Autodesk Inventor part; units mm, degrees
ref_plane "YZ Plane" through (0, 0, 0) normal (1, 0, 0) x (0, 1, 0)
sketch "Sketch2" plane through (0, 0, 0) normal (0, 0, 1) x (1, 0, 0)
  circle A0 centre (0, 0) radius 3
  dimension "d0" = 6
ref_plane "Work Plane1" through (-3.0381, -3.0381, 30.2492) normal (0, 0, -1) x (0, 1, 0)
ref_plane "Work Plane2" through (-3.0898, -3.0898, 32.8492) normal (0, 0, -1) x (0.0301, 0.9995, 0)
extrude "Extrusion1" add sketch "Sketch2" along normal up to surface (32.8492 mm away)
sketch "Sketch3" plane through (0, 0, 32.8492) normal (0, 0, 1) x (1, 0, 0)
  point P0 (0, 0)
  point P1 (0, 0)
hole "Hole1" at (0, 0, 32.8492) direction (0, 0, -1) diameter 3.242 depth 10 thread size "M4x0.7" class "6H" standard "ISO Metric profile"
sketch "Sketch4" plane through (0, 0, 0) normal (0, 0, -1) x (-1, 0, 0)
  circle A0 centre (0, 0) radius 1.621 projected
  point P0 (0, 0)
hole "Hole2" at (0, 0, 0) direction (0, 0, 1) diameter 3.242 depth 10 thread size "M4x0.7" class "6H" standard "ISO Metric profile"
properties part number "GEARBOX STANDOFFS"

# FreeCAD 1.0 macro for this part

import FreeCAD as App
import Part
import Sketcher
Q = App.Units.Quantity

doc = App.newDocument("Part")
body = doc.addObject("PartDesign::Body", "Body")

sketch1 = body.newObject("Sketcher::SketchObject", "Sketch")
sketch1.AttachmentSupport = (doc.getObject("XY_Plane"), [""])
sketch1.MapMode = "FlatFace"
sketch1.addGeometry(Part.Circle(App.Vector(0, 0, 0), App.Vector(0, 0, 1), 3), False)
sketch1.addConstraint([
    Sketcher.Constraint("Coincident", 0, 3, -1, 1),
    Sketcher.Constraint("Diameter", 0, Q("6 mm")),
])
pad1 = body.newObject("PartDesign::Pad", "Pad")
pad1.Profile = sketch1
pad1.Length = 32.8492

sketch2 = body.newObject("Sketcher::SketchObject", "Sketch001")
sketch2.AttachmentSupport = (doc.getObject("XY_Plane"), [""])
sketch2.MapMode = "FlatFace"
sketch2.AttachmentOffset = App.Placement(App.Vector(0, 0, 32.8492), App.Rotation())
sketch2.addGeometry(Part.Circle(App.Vector(0, 0, 0), App.Vector(0, 0, 1), 1.6), False)
sketch2.addConstraint([
    Sketcher.Constraint("Coincident", 0, 3, -1, 1),
    Sketcher.Constraint("Diameter", 0, Q("3.242 mm")),
])
doc.recompute()
hole = body.newObject("PartDesign::Hole", "Hole")
hole.Profile = sketch2
hole.ThreadType = "None"
hole.Diameter = 3.242
hole.DepthType = "Dimension"
hole.Depth = 10
hole.DrillPoint = "Flat"

sketch3 = body.newObject("Sketcher::SketchObject", "Sketch002")
sketch3.AttachmentSupport = (doc.getObject("XY_Plane"), [""])
sketch3.MapMode = "FlatFace"
sketch3.addGeometry(Part.Circle(App.Vector(0, 0, 0), App.Vector(0, 0, 1), 1.6), False)
sketch3.addConstraint([
    Sketcher.Constraint("Coincident", 0, 3, -1, 1),
    Sketcher.Constraint("Diameter", 0, Q("3.242 mm")),
])
doc.recompute()
hole2 = body.newObject("PartDesign::Hole", "Hole001")
hole2.Profile = sketch3
hole2.ThreadType = "None"
hole2.Diameter = 3.242
hole2.DepthType = "Dimension"
hole2.Depth = 10
hole2.DrillPoint = "Flat"
hole2.Reversed = True

doc.recompute()
